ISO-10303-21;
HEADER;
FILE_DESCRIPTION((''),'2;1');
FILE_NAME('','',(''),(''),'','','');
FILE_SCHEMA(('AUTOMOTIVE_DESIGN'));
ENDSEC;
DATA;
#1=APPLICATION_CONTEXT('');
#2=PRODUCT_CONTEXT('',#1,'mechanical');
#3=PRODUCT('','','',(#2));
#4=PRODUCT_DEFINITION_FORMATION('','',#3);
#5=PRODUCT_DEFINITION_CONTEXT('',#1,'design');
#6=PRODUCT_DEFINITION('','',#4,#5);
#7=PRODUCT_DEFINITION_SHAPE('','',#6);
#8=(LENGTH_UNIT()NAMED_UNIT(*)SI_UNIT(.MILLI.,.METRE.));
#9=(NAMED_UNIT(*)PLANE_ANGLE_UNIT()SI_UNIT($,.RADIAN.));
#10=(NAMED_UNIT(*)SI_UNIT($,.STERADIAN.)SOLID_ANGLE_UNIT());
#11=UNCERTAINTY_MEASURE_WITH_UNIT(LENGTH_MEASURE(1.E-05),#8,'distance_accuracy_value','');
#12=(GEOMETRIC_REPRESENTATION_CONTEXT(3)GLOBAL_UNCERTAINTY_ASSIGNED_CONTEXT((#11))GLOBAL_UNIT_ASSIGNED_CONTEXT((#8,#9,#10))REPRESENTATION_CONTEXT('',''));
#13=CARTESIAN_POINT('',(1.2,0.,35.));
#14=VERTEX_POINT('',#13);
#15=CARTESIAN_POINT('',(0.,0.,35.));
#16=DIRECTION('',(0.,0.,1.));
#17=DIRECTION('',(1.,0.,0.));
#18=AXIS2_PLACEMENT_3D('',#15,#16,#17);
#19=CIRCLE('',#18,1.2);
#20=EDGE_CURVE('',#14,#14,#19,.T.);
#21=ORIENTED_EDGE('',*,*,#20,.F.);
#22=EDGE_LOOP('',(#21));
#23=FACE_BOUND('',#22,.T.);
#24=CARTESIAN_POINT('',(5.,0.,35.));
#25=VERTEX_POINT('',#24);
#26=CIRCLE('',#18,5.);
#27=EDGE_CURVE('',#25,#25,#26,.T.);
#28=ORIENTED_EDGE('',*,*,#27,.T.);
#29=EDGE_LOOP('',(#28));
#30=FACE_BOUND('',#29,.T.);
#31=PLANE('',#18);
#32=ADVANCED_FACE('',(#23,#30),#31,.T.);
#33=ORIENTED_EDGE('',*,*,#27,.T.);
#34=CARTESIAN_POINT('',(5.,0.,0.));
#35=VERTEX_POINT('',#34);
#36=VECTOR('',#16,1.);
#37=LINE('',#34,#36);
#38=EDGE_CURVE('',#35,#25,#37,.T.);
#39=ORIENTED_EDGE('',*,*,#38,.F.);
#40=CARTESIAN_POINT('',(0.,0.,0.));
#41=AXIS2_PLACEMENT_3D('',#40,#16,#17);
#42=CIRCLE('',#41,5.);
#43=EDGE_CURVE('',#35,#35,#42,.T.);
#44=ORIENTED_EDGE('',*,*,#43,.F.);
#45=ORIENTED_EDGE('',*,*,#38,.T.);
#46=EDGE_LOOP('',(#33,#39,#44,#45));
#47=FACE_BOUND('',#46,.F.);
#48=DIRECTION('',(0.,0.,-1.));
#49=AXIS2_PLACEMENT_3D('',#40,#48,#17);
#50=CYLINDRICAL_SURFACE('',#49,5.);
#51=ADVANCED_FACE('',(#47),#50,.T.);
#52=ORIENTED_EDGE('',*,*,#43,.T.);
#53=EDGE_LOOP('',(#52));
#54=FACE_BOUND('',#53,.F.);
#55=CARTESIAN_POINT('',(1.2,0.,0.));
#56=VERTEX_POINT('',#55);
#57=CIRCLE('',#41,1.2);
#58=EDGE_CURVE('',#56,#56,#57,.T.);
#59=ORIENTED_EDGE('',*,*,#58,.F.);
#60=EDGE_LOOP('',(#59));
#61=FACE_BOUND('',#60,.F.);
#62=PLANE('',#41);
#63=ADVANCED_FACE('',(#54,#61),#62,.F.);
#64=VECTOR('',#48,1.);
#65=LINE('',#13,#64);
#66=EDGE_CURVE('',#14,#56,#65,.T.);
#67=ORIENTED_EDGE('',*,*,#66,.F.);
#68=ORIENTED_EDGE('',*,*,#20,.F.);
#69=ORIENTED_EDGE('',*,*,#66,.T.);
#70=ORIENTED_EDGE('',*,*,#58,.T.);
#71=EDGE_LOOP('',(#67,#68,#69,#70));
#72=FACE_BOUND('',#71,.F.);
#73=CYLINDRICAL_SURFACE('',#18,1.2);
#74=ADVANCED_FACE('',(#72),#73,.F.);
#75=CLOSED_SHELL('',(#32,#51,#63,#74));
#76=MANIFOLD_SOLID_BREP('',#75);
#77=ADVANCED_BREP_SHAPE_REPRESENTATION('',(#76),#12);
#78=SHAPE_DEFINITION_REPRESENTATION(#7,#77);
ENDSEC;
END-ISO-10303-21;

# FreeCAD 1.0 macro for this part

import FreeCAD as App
import Part
import Sketcher
Q = App.Units.Quantity

doc = App.newDocument("Part")
body = doc.addObject("PartDesign::Body", "Body")

# Sketch on XY plane
sketch1 = body.newObject("Sketcher::SketchObject", "Sketch")
sketch1.AttachmentSupport = (doc.getObject("XY_Plane"), [""])
sketch1.MapMode = "FlatFace"
sketch1.addGeometry(Part.Circle(App.Vector(0, 0, 0), App.Vector(0, 0, 1), 5), False)
sketch1.addConstraint([
    Sketcher.Constraint("Coincident", 0, 3, -1, 1),
    Sketcher.Constraint("Diameter", 0, Q("10 mm")),
])
pad1 = body.newObject("PartDesign::Pad", "Pad")
pad1.Profile = sketch1
pad1.Length = 35

# Sketch on XY plane
sketch2 = body.newObject("Sketcher::SketchObject", "Sketch001")
sketch2.AttachmentSupport = (doc.getObject("XY_Plane"), [""])
sketch2.MapMode = "FlatFace"
sketch2.AttachmentOffset = App.Placement(App.Vector(0, 0, 35), App.Rotation())
sketch2.addGeometry(Part.Circle(App.Vector(0, 0, 0), App.Vector(0, 0, 1), 1.2), False)
sketch2.addConstraint([
    Sketcher.Constraint("Coincident", 0, 3, -1, 1),
    Sketcher.Constraint("Diameter", 0, Q("2.4 mm")),
])
pocket1 = body.newObject("PartDesign::Pocket", "Pocket")
pocket1.Profile = sketch2
pocket1.Length = 35

doc.recompute()
